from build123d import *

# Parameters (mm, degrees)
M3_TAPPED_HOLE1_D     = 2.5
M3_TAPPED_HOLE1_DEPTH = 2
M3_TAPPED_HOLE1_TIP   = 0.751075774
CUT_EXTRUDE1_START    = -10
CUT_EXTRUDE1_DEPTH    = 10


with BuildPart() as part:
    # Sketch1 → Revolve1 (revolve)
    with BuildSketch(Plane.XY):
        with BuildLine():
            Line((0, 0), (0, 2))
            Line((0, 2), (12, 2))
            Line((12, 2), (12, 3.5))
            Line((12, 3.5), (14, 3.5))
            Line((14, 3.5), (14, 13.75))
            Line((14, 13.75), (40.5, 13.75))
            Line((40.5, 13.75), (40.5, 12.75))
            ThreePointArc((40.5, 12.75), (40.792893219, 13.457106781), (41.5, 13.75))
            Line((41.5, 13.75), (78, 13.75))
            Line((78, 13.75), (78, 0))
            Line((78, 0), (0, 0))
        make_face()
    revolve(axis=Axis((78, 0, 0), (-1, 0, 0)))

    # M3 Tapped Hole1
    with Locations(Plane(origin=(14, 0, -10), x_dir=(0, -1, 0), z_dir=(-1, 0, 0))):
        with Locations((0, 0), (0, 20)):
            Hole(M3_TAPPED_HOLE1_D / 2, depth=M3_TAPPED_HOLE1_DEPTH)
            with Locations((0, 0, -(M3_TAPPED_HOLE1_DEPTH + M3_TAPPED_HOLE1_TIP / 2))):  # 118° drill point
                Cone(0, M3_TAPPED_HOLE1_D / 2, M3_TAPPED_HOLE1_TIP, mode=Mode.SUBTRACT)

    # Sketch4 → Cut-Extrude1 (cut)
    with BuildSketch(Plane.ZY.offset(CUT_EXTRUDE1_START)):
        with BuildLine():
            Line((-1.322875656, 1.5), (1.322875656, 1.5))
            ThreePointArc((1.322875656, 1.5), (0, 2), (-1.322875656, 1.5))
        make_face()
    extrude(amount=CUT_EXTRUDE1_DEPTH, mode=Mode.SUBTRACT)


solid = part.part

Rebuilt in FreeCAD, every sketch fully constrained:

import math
import FreeCAD as App
import Part
import Sketcher
Q = App.Units.Quantity

doc = App.newDocument("Part")
body = doc.addObject("PartDesign::Body", "Body")

# Sketch on XY plane
sketch1 = body.newObject("Sketcher::SketchObject", "Sketch")
sketch1.AttachmentSupport = (doc.getObject("XY_Plane"), [""])
sketch1.MapMode = "FlatFace"
sketch1.addGeometry(Part.LineSegment(App.Vector(0, 2, 0), App.Vector(0, 0, 0)), False)
sketch1.addGeometry(Part.LineSegment(App.Vector(0, 0, 0), App.Vector(78, 0, 0)), False)
sketch1.addGeometry(Part.LineSegment(App.Vector(78, 0, 0), App.Vector(78, 13.8, 0)), False)
sketch1.addGeometry(Part.LineSegment(App.Vector(78, 13.8, 0), App.Vector(41.5, 13.8, 0)), False)
sketch1.addGeometry(Part.ArcOfCircle(Part.Circle(App.Vector(41.5, 12.7, 0), App.Vector(0, 0, 1), 1), math.radians(90), math.radians(180)), False)
sketch1.addGeometry(Part.LineSegment(App.Vector(40.5, 12.8, 0), App.Vector(40.5, 13.8, 0)), False)
sketch1.addGeometry(Part.LineSegment(App.Vector(40.5, 13.8, 0), App.Vector(14, 13.8, 0)), False)
sketch1.addGeometry(Part.LineSegment(App.Vector(14, 13.8, 0), App.Vector(14, 3.5, 0)), False)
sketch1.addGeometry(Part.LineSegment(App.Vector(14, 3.5, 0), App.Vector(12, 3.5, 0)), False)
sketch1.addGeometry(Part.LineSegment(App.Vector(12, 3.5, 0), App.Vector(12, 2, 0)), False)
sketch1.addGeometry(Part.LineSegment(App.Vector(12, 2, 0), App.Vector(0, 2, 0)), False)
sketch1.addConstraint(Sketcher.Constraint("Coincident", 0, 2, 1, 1))
sketch1.addConstraint(Sketcher.Constraint("Coincident", 1, 2, 2, 1))
sketch1.addConstraint(Sketcher.Constraint("Coincident", 2, 2, 3, 1))
sketch1.addConstraint(Sketcher.Constraint("Tangent", 3, 2, 4, 1))
sketch1.addConstraint(Sketcher.Constraint("Tangent", 4, 2, 5, 1))
sketch1.addConstraint(Sketcher.Constraint("Coincident", 5, 2, 6, 1))
sketch1.addConstraint(Sketcher.Constraint("Coincident", 6, 2, 7, 1))
sketch1.addConstraint(Sketcher.Constraint("Coincident", 7, 2, 8, 1))
sketch1.addConstraint(Sketcher.Constraint("Coincident", 8, 2, 9, 1))
sketch1.addConstraint(Sketcher.Constraint("Coincident", 9, 2, 10, 1))
sketch1.addConstraint(Sketcher.Constraint("Coincident", 10, 2, 0, 1))
sketch1.addConstraint(Sketcher.Constraint("Vertical", 0))
sketch1.addConstraint(Sketcher.Constraint("Horizontal", 1))
sketch1.addConstraint(Sketcher.Constraint("Vertical", 2))
sketch1.addConstraint(Sketcher.Constraint("Horizontal", 3))
sketch1.addConstraint(Sketcher.Constraint("Vertical", 5))
sketch1.addConstraint(Sketcher.Constraint("Horizontal", 6))
sketch1.addConstraint(Sketcher.Constraint("Vertical", 7))
sketch1.addConstraint(Sketcher.Constraint("Horizontal", 8))
sketch1.addConstraint(Sketcher.Constraint("Vertical", 9))
sketch1.addConstraint(Sketcher.Constraint("Horizontal", 10))
sketch1.addConstraint(Sketcher.Constraint("Coincident", 0, 2, -1, 1))
sketch1.addConstraint(Sketcher.Constraint("Horizontal", 3, 2, 5, 2))
sketch1.addConstraint(Sketcher.Constraint("Equal", 8, 0))
sketch1.addConstraint(Sketcher.Constraint("Radius", 4, Q("1 mm")))
sketch1.addConstraint(Sketcher.Constraint("DistanceX", 1, 1, 1, 2, Q("78 mm")))
sketch1.addConstraint(Sketcher.Constraint("DistanceX", 8, 2, 8, 1, Q("2 mm")))
sketch1.addConstraint(Sketcher.Constraint("DistanceX", 10, 2, 10, 1, Q("12 mm")))
sketch1.addConstraint(Sketcher.Constraint("DistanceX", 3, 2, 3, 1, Q("36.5 mm")))
sketch1.addConstraint(Sketcher.Constraint("DistanceY", 9, 2, 9, 1, Q("1.5 mm")))
sketch1.addConstraint(Sketcher.Constraint("DistanceY", 2, 1, 2, 2, Q("13.75 mm")))
revolution = body.newObject("PartDesign::Revolution", "Revolution")
revolution.Profile = sketch1
revolution.ReferenceAxis = (sketch1, ["H_Axis"])
revolution.Angle = 360

# Sketch on YZ plane
sketch2 = body.newObject("Sketcher::SketchObject", "Sketch001")
sketch2.AttachmentSupport = (doc.getObject("YZ_Plane"), [""])
sketch2.MapMode = "FlatFace"
sketch2.AttachmentOffset = App.Placement(App.Vector(0, 0, 14), App.Rotation())
sketch2.addGeometry(Part.Circle(App.Vector(0, -10, 0), App.Vector(0, 0, 1), 1.2), False)
sketch2.addGeometry(Part.Circle(App.Vector(0, 10, 0), App.Vector(0, 0, 1), 1.2), False)
sketch2.addConstraint(Sketcher.Constraint("Equal", 0, 1))
sketch2.addConstraint(Sketcher.Constraint("Symmetric", 0, 3, 1, 3, -1, 1))
sketch2.addConstraint(Sketcher.Constraint("PointOnObject", 0, 3, -2))
sketch2.addConstraint(Sketcher.Constraint("Diameter", 0, Q("2.5 mm")))
sketch2.addConstraint(Sketcher.Constraint("DistanceY", 0, 3, -1, 1, Q("10 mm")))
doc.recompute()
hole = body.newObject("PartDesign::Hole", "Hole")
hole.Profile = sketch2
hole.ThreadType = "None"
hole.Diameter = 2.5
hole.DepthType = "Dimension"
hole.Depth = 2
hole.DrillPoint = "Angled"
hole.DrillPointAngle = 118
hole.Reversed = True

# Sketch on YZ plane
sketch3 = body.newObject("Sketcher::SketchObject", "Sketch002")
sketch3.AttachmentSupport = (doc.getObject("YZ_Plane"), [""])
sketch3.MapMode = "FlatFace"
sketch3.AttachmentOffset = App.Placement(App.Vector(0, 0, 10), App.Rotation())
sketch3.addGeometry(Part.LineSegment(App.Vector(1.5, -1.3, 0), App.Vector(1.5, 1.3, 0)), False)
sketch3.addGeometry(Part.ArcOfCircle(Part.Circle(App.Vector(0, 0, 0), App.Vector(0, 0, 1), 2), math.radians(-41), math.radians(41)), False)
sketch3.addConstraint(Sketcher.Constraint("Coincident", 0, 1, 1, 1))
sketch3.addConstraint(Sketcher.Constraint("Coincident", 1, 2, 0, 2))
sketch3.addConstraint(Sketcher.Constraint("Vertical", 0))
sketch3.addConstraint(Sketcher.Constraint("Coincident", 1, 3, -1, 1))
sketch3.addConstraint(Sketcher.Constraint("Radius", 1, Q("2 mm")))
sketch3.addConstraint(Sketcher.Constraint("DistanceX", -1, 1, 0, 1, Q("1.5 mm")))
pocket1 = body.newObject("PartDesign::Pocket", "Pocket")
pocket1.Profile = sketch3
pocket1.Length = 10

doc.recompute()
